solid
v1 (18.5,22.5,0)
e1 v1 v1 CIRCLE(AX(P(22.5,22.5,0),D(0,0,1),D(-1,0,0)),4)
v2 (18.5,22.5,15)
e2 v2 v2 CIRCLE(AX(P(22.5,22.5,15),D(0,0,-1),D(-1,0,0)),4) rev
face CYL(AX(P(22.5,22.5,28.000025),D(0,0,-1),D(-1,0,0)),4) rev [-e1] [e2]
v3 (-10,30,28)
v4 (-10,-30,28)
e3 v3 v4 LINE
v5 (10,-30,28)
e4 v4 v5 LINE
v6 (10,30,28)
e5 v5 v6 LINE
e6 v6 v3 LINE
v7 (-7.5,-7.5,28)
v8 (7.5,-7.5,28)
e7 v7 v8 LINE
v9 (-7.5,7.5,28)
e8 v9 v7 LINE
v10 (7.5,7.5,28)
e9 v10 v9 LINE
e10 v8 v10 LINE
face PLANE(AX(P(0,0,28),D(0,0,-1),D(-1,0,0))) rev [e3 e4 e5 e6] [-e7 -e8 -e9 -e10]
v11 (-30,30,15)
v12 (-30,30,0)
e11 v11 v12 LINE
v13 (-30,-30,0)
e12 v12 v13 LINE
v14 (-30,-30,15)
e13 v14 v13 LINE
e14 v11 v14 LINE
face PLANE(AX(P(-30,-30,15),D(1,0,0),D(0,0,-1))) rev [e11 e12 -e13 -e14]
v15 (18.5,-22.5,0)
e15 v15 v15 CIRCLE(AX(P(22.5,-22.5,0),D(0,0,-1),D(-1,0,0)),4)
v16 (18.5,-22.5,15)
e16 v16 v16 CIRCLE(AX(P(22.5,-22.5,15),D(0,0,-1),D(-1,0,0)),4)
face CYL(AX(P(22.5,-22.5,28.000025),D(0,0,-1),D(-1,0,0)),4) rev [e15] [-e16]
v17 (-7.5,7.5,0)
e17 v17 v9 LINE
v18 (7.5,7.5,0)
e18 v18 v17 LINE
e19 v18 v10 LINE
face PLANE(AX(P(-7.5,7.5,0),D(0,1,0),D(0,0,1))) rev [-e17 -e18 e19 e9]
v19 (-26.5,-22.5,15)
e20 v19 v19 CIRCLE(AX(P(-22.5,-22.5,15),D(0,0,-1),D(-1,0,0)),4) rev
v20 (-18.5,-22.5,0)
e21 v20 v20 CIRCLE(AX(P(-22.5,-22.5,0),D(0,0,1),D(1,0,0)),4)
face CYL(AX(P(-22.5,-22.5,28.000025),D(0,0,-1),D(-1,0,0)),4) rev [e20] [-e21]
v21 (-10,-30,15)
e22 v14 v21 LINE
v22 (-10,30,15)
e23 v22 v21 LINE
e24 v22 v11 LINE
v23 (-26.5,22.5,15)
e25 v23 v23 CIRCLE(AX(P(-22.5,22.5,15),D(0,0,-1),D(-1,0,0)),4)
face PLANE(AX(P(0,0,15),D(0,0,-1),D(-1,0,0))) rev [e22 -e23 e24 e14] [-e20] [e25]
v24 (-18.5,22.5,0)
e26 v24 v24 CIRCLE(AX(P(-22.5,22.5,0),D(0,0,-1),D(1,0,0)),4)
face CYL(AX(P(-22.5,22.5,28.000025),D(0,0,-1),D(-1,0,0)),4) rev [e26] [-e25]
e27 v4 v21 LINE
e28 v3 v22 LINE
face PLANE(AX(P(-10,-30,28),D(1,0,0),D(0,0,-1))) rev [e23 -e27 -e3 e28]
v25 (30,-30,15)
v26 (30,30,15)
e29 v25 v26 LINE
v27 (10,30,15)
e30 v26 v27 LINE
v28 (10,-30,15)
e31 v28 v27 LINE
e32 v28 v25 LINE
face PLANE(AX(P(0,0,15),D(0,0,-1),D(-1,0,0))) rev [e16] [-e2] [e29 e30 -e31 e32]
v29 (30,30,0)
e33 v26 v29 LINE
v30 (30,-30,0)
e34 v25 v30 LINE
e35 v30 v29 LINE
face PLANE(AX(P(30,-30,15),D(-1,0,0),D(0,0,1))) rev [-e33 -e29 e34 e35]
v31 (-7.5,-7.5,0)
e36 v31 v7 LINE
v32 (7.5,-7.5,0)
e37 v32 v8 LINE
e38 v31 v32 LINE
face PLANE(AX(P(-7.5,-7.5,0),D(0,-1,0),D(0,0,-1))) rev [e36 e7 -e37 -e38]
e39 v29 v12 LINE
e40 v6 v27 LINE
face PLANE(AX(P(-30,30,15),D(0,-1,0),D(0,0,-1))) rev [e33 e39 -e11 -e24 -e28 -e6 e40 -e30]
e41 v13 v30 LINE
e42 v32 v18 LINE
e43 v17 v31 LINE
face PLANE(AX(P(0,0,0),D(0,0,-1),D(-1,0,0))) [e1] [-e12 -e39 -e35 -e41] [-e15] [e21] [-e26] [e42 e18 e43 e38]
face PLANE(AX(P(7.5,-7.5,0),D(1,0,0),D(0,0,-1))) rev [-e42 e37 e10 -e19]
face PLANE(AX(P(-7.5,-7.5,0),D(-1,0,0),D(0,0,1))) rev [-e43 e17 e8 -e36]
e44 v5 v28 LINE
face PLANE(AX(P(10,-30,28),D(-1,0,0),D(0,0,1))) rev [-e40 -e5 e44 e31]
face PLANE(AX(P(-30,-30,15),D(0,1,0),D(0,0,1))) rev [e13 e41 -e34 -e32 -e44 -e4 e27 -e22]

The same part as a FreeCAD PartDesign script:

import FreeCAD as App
import Part
import Sketcher
Q = App.Units.Quantity

doc = App.newDocument("Part")
body = doc.addObject("PartDesign::Body", "Body")

# Sketch on XY plane
sketch1 = doc.addObject("Sketcher::SketchObject", "Sketch")
body.addObject(sketch1)
sketch1.AttachmentSupport = (doc.XY_Plane, [""])
sketch1.MapMode = "FlatFace"
sketch1.addGeometry([
    Part.LineSegment(App.Vector(-30, 30, 0), App.Vector(-30, -30, 0)),
    Part.LineSegment(App.Vector(-30, -30, 0), App.Vector(30, -30, 0)),
    Part.LineSegment(App.Vector(30, -30, 0), App.Vector(30, 30, 0)),
    Part.LineSegment(App.Vector(30, 30, 0), App.Vector(-30, 30, 0)),
], False)
sketch1.addConstraint([
    Sketcher.Constraint("Coincident", 0, 2, 1, 1),
    Sketcher.Constraint("Coincident", 1, 2, 2, 1),
    Sketcher.Constraint("Coincident", 2, 2, 3, 1),
    Sketcher.Constraint("Coincident", 3, 2, 0, 1),
    Sketcher.Constraint("Vertical", 0),
    Sketcher.Constraint("Horizontal", 1),
    Sketcher.Constraint("Vertical", 2),
    Sketcher.Constraint("Horizontal", 3),
    Sketcher.Constraint("Symmetric", 0, 2, 2, 2, -1, 1),
    Sketcher.Constraint("Equal", 3, 0),
    Sketcher.Constraint("DistanceX", 1, 1, 1, 2, Q("60 mm")),
])
pad1 = doc.addObject("PartDesign::Pad", "Pad")
body.addObject(pad1)
pad1.Profile = sketch1
pad1.Length = 15

# Sketch on XY plane
sketch2 = doc.addObject("Sketcher::SketchObject", "Sketch001")
body.addObject(sketch2)
sketch2.AttachmentSupport = (doc.XY_Plane, [""])
sketch2.MapMode = "FlatFace"
sketch2.AttachmentOffset = App.Placement(App.Vector(0, 0, 15), App.Rotation())
sketch2.addGeometry([
    Part.LineSegment(App.Vector(-10, 30, 0), App.Vector(-10, -30, 0)),
    Part.LineSegment(App.Vector(-10, -30, 0), App.Vector(10, -30, 0)),
    Part.LineSegment(App.Vector(10, -30, 0), App.Vector(10, 30, 0)),
    Part.LineSegment(App.Vector(10, 30, 0), App.Vector(-10, 30, 0)),
], False)
sketch2.addConstraint([
    Sketcher.Constraint("Coincident", 0, 2, 1, 1),
    Sketcher.Constraint("Coincident", 1, 2, 2, 1),
    Sketcher.Constraint("Coincident", 2, 2, 3, 1),
    Sketcher.Constraint("Coincident", 3, 2, 0, 1),
    Sketcher.Constraint("Vertical", 0),
    Sketcher.Constraint("Horizontal", 1),
    Sketcher.Constraint("Vertical", 2),
    Sketcher.Constraint("Horizontal", 3),
    Sketcher.Constraint("Symmetric", 0, 2, 2, 2, -1, 1),
    Sketcher.Constraint("DistanceX", 1, 1, 1, 2, Q("20 mm")),
    Sketcher.Constraint("DistanceY", 0, 2, 0, 1, Q("60 mm")),
])
pad2 = doc.addObject("PartDesign::Pad", "Pad001")
body.addObject(pad2)
pad2.Profile = sketch2
pad2.Length = 13

# Sketch on XY plane
sketch3 = doc.addObject("Sketcher::SketchObject", "Sketch002")
body.addObject(sketch3)
sketch3.AttachmentSupport = (doc.XY_Plane, [""])
sketch3.MapMode = "FlatFace"
sketch3.AttachmentOffset = App.Placement(App.Vector(0, 0, 28), App.Rotation())
sketch3.addGeometry([
    Part.LineSegment(App.Vector(-8, 8, 0), App.Vector(-8, -8, 0)),
    Part.LineSegment(App.Vector(-8, -8, 0), App.Vector(8, -8, 0)),
    Part.LineSegment(App.Vector(8, -8, 0), App.Vector(8, 8, 0)),
    Part.LineSegment(App.Vector(8, 8, 0), App.Vector(-8, 8, 0)),
], False)
sketch3.addConstraint([
    Sketcher.Constraint("Coincident", 0, 2, 1, 1),
    Sketcher.Constraint("Coincident", 1, 2, 2, 1),
    Sketcher.Constraint("Coincident", 2, 2, 3, 1),
    Sketcher.Constraint("Coincident", 3, 2, 0, 1),
    Sketcher.Constraint("Vertical", 0),
    Sketcher.Constraint("Horizontal", 1),
    Sketcher.Constraint("Vertical", 2),
    Sketcher.Constraint("Horizontal", 3),
    Sketcher.Constraint("Symmetric", 0, 2, 2, 2, -1, 1),
    Sketcher.Constraint("Equal", 3, 0),
    Sketcher.Constraint("DistanceX", 1, 1, 1, 2, Q("15 mm")),
])
pocket1 = doc.addObject("PartDesign::Pocket", "Pocket")
body.addObject(pocket1)
pocket1.Profile = sketch3
pocket1.Type = "ThroughAll"

# Sketch on XY plane
sketch4 = doc.addObject("Sketcher::SketchObject", "Sketch003")
body.addObject(sketch4)
sketch4.AttachmentSupport = (doc.XY_Plane, [""])
sketch4.MapMode = "FlatFace"
sketch4.addGeometry(Part.Circle(App.Vector(22.5, -22.5, 0), App.Vector(0, 0, 1), 4), False)
sketch4.addConstraint([
    Sketcher.Constraint("Diameter", 0, Q("8 mm")),
    Sketcher.Constraint("DistanceX", -1, 1, 0, 3, Q("22.5 mm")),
    Sketcher.Constraint("DistanceY", 0, 3, -1, 1, Q("22.5 mm")),
])
pocket2 = doc.addObject("PartDesign::Pocket", "Pocket001")
body.addObject(pocket2)
pocket2.Profile = sketch4
pocket2.Type = "ThroughAll"
pocket2.Reversed = True
doc.recompute()

mirrored = doc.addObject("PartDesign::Mirrored", "Mirrored")
body.addObject(mirrored)
mirrored.Originals = [pocket2]
mirrored.MirrorPlane = (doc.XZ_Plane, [""])
body.Tip = mirrored
doc.recompute()

mirrored2 = doc.addObject("PartDesign::Mirrored", "Mirrored001")
body.addObject(mirrored2)
mirrored2.Originals = [pocket2]
mirrored2.MirrorPlane = (doc.YZ_Plane, [""])
body.Tip = mirrored2

# Sketch on XY plane
sketch5 = doc.addObject("Sketcher::SketchObject", "Sketch004")
body.addObject(sketch5)
sketch5.AttachmentSupport = (doc.XY_Plane, [""])
sketch5.MapMode = "FlatFace"
sketch5.addGeometry(Part.Circle(App.Vector(-22.5, 22.5, 0), App.Vector(0, 0, 1), 4), False)
sketch5.addConstraint([
    Sketcher.Constraint("Diameter", 0, Q("8 mm")),
    Sketcher.Constraint("DistanceX", 0, 3, -1, 1, Q("22.5 mm")),
    Sketcher.Constraint("DistanceY", -1, 1, 0, 3, Q("22.5 mm")),
])
pocket3 = doc.addObject("PartDesign::Pocket", "Pocket002")
body.addObject(pocket3)
pocket3.Profile = sketch5
pocket3.Type = "ThroughAll"
pocket3.Reversed = True

doc.recompute()
